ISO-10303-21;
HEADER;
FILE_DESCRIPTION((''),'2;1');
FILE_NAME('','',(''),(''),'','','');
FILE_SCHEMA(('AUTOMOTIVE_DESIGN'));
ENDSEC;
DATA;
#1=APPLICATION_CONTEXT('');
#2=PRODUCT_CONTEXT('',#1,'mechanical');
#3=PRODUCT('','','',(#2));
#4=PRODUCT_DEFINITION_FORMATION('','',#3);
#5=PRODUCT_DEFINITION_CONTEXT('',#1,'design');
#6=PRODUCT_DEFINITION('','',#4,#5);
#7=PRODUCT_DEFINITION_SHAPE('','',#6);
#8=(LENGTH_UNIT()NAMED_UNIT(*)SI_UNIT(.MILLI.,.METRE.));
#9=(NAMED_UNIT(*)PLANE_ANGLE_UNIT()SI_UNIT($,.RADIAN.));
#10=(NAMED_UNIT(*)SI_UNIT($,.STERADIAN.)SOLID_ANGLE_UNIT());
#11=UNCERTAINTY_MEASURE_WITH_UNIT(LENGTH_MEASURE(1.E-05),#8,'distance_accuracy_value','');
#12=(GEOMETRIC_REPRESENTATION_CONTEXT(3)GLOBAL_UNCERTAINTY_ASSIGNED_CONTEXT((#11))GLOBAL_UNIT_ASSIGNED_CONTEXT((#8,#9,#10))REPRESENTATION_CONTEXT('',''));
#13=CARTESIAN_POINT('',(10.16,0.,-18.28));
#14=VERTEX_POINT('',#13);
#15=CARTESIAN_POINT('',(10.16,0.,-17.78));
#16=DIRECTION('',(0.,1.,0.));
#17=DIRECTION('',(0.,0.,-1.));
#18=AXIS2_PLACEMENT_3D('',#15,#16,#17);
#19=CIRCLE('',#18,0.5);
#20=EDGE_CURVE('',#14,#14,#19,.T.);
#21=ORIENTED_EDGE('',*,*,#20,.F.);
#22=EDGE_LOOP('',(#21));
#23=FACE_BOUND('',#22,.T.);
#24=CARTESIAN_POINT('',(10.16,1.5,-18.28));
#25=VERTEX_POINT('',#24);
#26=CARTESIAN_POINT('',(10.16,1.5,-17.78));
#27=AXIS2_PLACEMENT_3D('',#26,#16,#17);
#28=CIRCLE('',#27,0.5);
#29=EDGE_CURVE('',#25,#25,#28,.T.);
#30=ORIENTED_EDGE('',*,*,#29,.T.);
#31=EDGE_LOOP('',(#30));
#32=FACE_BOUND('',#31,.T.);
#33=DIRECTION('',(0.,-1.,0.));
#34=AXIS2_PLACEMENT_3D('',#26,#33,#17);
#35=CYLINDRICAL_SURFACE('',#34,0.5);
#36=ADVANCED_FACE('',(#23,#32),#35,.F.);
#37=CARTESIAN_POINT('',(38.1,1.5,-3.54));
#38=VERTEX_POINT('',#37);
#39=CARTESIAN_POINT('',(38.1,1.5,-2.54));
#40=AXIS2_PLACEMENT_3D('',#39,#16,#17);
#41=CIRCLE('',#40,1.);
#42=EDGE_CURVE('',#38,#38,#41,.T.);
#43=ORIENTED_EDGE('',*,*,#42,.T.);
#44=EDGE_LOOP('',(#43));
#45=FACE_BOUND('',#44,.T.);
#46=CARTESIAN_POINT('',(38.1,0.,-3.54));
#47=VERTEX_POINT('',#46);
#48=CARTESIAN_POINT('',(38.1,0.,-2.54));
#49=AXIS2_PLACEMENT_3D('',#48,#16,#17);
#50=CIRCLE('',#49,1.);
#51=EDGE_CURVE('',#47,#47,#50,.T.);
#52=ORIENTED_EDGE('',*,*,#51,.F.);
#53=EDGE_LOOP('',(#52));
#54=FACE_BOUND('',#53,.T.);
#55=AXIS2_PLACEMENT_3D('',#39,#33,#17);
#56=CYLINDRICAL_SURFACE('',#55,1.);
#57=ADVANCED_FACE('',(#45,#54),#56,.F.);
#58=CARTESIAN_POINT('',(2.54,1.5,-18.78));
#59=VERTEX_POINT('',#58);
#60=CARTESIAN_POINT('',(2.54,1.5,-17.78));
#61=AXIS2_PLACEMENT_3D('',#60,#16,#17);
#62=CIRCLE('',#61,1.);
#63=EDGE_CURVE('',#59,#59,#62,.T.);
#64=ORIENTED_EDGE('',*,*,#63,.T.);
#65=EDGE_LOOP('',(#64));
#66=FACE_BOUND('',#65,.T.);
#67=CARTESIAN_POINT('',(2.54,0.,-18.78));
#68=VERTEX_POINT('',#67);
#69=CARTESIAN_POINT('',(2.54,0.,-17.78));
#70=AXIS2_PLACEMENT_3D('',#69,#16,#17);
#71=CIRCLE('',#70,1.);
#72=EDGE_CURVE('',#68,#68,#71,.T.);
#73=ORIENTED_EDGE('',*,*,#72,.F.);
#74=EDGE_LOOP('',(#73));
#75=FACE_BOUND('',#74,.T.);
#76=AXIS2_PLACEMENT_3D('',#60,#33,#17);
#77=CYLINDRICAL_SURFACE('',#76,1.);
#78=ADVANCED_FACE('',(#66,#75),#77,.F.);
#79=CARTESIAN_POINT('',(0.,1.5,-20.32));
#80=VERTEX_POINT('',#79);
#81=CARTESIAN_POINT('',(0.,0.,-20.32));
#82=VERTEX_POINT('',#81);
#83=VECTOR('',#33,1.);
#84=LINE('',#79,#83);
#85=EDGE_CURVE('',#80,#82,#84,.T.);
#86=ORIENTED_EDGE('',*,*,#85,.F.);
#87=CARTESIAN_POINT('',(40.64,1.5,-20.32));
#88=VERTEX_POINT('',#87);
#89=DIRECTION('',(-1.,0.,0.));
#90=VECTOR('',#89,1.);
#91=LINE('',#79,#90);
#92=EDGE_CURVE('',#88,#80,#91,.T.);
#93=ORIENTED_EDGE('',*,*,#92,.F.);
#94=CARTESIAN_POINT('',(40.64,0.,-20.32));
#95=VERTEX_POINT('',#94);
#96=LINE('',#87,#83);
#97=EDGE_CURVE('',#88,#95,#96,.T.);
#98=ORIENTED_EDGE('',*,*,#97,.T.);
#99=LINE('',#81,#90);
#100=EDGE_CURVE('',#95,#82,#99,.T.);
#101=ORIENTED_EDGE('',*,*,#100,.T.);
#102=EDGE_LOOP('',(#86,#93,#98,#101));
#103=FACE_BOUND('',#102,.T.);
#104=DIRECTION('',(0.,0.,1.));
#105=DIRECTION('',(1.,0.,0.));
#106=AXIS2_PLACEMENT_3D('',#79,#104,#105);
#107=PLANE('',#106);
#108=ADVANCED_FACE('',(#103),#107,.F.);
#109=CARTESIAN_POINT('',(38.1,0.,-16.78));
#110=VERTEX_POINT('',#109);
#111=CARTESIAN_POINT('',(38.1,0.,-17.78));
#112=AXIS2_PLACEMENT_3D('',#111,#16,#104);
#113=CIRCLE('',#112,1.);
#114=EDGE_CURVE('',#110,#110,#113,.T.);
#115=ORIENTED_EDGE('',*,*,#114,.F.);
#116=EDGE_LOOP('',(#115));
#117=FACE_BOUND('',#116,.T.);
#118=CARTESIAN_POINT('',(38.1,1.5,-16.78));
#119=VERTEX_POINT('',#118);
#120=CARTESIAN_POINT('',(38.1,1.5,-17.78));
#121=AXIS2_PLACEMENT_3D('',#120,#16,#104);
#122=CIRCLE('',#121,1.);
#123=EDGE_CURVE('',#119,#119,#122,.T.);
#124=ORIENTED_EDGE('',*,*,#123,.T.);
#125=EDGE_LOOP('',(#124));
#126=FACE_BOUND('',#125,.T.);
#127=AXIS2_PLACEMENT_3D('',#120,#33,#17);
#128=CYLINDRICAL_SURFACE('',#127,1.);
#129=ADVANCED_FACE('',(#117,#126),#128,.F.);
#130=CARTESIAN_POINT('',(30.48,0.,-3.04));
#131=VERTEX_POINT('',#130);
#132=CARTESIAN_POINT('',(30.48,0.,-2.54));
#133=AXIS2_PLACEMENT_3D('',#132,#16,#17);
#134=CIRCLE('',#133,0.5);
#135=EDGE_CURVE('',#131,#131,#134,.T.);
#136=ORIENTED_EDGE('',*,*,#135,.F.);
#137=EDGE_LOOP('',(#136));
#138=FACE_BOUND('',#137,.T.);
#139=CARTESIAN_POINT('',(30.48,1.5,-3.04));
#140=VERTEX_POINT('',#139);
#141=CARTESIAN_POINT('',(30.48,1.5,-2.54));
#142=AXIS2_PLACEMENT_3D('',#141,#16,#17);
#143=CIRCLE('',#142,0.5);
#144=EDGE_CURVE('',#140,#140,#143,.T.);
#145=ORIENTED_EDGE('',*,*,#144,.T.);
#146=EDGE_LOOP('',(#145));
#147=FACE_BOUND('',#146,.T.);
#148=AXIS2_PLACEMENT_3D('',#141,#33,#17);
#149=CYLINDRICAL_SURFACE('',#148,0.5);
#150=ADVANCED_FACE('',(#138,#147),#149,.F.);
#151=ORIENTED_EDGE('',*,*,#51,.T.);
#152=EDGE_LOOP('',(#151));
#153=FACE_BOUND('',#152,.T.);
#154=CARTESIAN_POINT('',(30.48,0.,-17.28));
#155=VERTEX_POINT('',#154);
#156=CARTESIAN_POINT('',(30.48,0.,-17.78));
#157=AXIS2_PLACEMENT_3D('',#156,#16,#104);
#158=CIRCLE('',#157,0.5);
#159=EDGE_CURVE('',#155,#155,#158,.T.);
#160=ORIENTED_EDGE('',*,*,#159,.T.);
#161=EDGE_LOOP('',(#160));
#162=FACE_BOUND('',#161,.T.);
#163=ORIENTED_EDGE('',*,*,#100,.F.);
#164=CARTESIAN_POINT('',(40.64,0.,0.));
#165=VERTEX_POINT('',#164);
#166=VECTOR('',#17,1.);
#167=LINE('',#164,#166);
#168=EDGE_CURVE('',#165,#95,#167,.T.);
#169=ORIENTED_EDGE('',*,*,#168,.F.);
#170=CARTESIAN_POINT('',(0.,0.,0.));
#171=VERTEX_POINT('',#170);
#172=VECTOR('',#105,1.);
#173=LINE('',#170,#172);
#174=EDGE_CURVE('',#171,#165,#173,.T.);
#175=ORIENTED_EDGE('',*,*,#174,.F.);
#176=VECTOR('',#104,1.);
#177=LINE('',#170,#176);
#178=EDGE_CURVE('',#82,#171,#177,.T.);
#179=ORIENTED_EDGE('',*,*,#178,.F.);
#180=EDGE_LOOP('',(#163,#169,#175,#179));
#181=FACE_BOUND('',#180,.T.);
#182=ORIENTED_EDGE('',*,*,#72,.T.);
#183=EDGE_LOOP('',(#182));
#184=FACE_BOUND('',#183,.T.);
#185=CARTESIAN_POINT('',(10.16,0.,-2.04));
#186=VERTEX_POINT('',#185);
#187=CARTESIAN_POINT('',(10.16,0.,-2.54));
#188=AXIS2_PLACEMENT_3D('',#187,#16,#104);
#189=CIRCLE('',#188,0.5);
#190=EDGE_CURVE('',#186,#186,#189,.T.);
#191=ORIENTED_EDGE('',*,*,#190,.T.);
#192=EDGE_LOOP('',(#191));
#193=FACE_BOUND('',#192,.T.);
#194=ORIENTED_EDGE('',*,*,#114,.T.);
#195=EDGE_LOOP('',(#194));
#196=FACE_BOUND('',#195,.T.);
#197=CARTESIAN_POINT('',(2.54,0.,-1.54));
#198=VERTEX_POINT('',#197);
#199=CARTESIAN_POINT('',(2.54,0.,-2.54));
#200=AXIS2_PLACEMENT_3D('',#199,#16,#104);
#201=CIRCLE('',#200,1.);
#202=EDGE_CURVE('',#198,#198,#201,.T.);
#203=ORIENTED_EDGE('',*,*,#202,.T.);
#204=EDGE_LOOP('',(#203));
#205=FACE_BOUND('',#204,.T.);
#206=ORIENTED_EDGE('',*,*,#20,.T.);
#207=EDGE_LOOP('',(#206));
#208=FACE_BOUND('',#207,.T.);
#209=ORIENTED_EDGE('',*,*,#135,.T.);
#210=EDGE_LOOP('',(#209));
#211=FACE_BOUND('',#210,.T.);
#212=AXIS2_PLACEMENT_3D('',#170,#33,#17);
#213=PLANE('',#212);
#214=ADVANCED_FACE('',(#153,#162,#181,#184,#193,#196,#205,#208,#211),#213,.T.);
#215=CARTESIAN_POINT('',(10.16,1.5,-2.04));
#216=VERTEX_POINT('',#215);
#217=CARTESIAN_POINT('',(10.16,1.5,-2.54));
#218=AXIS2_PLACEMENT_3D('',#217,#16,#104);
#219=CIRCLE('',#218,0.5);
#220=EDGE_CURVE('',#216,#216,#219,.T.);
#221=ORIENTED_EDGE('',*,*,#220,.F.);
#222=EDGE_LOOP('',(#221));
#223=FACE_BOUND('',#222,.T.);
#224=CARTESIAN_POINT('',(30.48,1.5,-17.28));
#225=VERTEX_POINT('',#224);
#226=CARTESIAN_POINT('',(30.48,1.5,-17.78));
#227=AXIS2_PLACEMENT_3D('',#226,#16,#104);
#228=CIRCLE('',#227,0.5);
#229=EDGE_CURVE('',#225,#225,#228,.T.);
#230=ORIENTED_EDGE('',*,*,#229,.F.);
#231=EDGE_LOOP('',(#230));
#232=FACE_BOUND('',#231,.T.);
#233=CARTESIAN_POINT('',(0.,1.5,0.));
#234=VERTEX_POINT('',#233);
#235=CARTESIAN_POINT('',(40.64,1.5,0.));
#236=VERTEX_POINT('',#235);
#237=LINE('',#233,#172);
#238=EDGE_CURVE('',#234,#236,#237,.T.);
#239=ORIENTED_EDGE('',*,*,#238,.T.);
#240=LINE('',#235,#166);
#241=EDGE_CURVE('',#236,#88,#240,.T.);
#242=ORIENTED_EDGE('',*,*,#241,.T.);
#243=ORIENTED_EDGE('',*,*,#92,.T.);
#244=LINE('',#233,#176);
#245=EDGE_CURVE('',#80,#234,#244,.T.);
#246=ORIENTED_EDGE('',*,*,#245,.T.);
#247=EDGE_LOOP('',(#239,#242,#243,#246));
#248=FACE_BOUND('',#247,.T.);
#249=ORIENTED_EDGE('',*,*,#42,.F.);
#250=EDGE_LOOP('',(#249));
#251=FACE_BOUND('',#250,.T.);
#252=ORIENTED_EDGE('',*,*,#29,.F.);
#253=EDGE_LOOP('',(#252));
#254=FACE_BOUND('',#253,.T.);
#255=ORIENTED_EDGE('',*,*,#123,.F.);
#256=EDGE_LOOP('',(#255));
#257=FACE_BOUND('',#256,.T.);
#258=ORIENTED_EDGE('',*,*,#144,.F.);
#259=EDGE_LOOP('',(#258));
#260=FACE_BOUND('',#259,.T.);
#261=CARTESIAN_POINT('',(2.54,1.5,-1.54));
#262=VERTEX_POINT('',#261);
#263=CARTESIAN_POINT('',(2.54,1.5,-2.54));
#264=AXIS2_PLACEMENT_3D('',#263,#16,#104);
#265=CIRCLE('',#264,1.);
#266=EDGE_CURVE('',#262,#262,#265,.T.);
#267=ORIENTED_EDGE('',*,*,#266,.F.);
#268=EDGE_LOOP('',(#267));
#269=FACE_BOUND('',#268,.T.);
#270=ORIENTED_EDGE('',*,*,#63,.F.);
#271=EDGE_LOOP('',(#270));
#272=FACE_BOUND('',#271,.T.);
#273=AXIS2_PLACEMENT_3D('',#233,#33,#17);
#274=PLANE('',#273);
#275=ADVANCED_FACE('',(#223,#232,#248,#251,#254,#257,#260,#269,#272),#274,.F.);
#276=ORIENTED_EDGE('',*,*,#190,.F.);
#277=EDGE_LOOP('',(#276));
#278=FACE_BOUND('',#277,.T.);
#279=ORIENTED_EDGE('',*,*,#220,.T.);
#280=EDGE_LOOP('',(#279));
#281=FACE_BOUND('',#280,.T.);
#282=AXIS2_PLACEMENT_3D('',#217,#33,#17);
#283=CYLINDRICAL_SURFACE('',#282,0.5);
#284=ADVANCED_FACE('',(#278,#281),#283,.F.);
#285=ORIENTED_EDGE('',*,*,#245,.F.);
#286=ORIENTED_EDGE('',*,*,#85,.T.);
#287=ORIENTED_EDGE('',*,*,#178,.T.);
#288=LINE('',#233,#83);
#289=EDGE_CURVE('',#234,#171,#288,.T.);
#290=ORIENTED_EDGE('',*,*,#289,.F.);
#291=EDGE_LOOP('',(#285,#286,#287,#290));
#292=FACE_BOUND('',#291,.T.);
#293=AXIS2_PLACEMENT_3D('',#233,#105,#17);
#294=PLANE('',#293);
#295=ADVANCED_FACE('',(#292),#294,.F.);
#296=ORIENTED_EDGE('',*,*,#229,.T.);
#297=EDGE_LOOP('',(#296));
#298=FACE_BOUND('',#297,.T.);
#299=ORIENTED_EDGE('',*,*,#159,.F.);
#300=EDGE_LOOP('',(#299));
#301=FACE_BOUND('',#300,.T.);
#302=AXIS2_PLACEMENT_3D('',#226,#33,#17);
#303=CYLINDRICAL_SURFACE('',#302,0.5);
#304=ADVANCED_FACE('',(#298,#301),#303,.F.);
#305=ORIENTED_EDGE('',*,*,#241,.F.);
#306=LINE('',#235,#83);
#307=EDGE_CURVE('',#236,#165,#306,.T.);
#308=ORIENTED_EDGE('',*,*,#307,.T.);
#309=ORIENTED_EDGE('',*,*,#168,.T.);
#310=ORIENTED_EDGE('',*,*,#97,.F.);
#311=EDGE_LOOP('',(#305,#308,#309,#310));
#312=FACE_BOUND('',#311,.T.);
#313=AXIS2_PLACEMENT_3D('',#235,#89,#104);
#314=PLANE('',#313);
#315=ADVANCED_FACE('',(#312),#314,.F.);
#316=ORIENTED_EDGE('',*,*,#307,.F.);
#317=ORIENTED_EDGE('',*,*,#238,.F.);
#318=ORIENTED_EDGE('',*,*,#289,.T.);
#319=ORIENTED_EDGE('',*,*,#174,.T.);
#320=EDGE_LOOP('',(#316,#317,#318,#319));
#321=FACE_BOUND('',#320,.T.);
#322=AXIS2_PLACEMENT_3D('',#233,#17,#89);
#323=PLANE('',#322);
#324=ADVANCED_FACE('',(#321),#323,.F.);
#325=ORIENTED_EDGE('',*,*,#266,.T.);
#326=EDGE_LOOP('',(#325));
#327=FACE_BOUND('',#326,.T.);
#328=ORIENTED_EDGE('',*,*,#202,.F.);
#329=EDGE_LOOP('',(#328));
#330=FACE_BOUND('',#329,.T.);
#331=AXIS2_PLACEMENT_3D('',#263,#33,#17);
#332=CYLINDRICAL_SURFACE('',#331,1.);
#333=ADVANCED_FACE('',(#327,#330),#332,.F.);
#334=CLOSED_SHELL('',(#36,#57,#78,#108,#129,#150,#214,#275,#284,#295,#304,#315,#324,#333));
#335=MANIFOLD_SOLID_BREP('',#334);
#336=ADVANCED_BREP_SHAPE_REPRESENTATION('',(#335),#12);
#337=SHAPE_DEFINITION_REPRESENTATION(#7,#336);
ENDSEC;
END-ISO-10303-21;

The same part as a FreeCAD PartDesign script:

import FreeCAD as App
import Part
import Sketcher
from FreeCAD import Vector
Q = App.Units.Quantity

doc = App.newDocument("Part")
body = doc.addObject("PartDesign::Body", "Body")

sketch1 = body.newObject("Sketcher::SketchObject", "Sketch")
sketch1.AttachmentSupport = (doc.getObject("XZ_Plane"), [""])
sketch1.MapMode = "FlatFace"
sketch1.addGeometry([
    Part.LineSegment(Vector(0, -20.3, 0), Vector(0, 0, 0)),
    Part.LineSegment(Vector(0, 0, 0), Vector(40.6, 0, 0)),
    Part.LineSegment(Vector(40.6, 0, 0), Vector(40.6, -20.3, 0)),
    Part.LineSegment(Vector(40.6, -20.3, 0), Vector(0, -20.3, 0)),
    Part.Circle(Vector(2.5, -2.5, 0), Vector(0, 0, 1), 1),
    Part.Circle(Vector(10.2, -2.5, 0), Vector(0, 0, 1), 0.5),
    Part.Circle(Vector(30.5, -2.5, 0), Vector(0, 0, 1), 0.5),
    Part.Circle(Vector(38.1, -2.5, 0), Vector(0, 0, 1), 1),
    Part.Circle(Vector(2.5, -17.8, 0), Vector(0, 0, 1), 1),
    Part.Circle(Vector(10.2, -17.8, 0), Vector(0, 0, 1), 0.5),
    Part.Circle(Vector(30.5, -17.8, 0), Vector(0, 0, 1), 0.5),
    Part.Circle(Vector(38.1, -17.8, 0), Vector(0, 0, 1), 1),
], False)
sketch1.addConstraint([
    Sketcher.Constraint("Coincident", 0, 2, 1, 1),
    Sketcher.Constraint("Coincident", 1, 2, 2, 1),
    Sketcher.Constraint("Coincident", 2, 2, 3, 1),
    Sketcher.Constraint("Coincident", 3, 2, 0, 1),
    Sketcher.Constraint("Vertical", 0),
    Sketcher.Constraint("Horizontal", 1),
    Sketcher.Constraint("Vertical", 2),
    Sketcher.Constraint("Horizontal", 3),
    Sketcher.Constraint("Coincident", 0, 2, -1, 1),
    Sketcher.Constraint("Equal", 5, 6),
    Sketcher.Constraint("Equal", 4, 7),
    Sketcher.Constraint("Equal", 7, 8),
    Sketcher.Constraint("Equal", 6, 9),
    Sketcher.Constraint("Equal", 9, 10),
    Sketcher.Constraint("Equal", 8, 11),
    Sketcher.Constraint("Horizontal", 4, 3, 5, 3),
    Sketcher.Constraint("Horizontal", 5, 3, 6, 3),
    Sketcher.Constraint("Horizontal", 6, 3, 7, 3),
    Sketcher.Constraint("Horizontal", 8, 3, 9, 3),
    Sketcher.Constraint("Horizontal", 9, 3, 10, 3),
    Sketcher.Constraint("Horizontal", 10, 3, 11, 3),
    Sketcher.Constraint("Vertical", 4, 3, 8, 3),
    Sketcher.Constraint("Vertical", 5, 3, 9, 3),
    Sketcher.Constraint("Vertical", 6, 3, 10, 3),
    Sketcher.Constraint("Vertical", 7, 3, 11, 3),
    Sketcher.Constraint("Diameter", 4, Q("2 mm")),
    Sketcher.Constraint("Diameter", 5, Q("1 mm")),
    Sketcher.Constraint("DistanceX", 1, 1, 1, 2, Q("40.64 mm")),
    Sketcher.Constraint("DistanceY", 0, 1, 0, 2, Q("20.32 mm")),
    Sketcher.Constraint("DistanceX", -1, 1, 7, 3, Q("38.1 mm")),
    Sketcher.Constraint("DistanceX", -1, 1, 4, 3, Q("2.54 mm")),
    Sketcher.Constraint("DistanceY", 4, 3, -1, 1, Q("2.54 mm")),
    Sketcher.Constraint("DistanceX", -1, 1, 5, 3, Q("10.16 mm")),
    Sketcher.Constraint("DistanceX", -1, 1, 6, 3, Q("30.48 mm")),
    Sketcher.Constraint("DistanceY", 8, 3, -1, 1, Q("17.78 mm")),
])
pad1 = body.newObject("PartDesign::Pad", "Pad")
pad1.Profile = sketch1
pad1.Length = 1.5
pad1.Reversed = True

doc.recompute()
